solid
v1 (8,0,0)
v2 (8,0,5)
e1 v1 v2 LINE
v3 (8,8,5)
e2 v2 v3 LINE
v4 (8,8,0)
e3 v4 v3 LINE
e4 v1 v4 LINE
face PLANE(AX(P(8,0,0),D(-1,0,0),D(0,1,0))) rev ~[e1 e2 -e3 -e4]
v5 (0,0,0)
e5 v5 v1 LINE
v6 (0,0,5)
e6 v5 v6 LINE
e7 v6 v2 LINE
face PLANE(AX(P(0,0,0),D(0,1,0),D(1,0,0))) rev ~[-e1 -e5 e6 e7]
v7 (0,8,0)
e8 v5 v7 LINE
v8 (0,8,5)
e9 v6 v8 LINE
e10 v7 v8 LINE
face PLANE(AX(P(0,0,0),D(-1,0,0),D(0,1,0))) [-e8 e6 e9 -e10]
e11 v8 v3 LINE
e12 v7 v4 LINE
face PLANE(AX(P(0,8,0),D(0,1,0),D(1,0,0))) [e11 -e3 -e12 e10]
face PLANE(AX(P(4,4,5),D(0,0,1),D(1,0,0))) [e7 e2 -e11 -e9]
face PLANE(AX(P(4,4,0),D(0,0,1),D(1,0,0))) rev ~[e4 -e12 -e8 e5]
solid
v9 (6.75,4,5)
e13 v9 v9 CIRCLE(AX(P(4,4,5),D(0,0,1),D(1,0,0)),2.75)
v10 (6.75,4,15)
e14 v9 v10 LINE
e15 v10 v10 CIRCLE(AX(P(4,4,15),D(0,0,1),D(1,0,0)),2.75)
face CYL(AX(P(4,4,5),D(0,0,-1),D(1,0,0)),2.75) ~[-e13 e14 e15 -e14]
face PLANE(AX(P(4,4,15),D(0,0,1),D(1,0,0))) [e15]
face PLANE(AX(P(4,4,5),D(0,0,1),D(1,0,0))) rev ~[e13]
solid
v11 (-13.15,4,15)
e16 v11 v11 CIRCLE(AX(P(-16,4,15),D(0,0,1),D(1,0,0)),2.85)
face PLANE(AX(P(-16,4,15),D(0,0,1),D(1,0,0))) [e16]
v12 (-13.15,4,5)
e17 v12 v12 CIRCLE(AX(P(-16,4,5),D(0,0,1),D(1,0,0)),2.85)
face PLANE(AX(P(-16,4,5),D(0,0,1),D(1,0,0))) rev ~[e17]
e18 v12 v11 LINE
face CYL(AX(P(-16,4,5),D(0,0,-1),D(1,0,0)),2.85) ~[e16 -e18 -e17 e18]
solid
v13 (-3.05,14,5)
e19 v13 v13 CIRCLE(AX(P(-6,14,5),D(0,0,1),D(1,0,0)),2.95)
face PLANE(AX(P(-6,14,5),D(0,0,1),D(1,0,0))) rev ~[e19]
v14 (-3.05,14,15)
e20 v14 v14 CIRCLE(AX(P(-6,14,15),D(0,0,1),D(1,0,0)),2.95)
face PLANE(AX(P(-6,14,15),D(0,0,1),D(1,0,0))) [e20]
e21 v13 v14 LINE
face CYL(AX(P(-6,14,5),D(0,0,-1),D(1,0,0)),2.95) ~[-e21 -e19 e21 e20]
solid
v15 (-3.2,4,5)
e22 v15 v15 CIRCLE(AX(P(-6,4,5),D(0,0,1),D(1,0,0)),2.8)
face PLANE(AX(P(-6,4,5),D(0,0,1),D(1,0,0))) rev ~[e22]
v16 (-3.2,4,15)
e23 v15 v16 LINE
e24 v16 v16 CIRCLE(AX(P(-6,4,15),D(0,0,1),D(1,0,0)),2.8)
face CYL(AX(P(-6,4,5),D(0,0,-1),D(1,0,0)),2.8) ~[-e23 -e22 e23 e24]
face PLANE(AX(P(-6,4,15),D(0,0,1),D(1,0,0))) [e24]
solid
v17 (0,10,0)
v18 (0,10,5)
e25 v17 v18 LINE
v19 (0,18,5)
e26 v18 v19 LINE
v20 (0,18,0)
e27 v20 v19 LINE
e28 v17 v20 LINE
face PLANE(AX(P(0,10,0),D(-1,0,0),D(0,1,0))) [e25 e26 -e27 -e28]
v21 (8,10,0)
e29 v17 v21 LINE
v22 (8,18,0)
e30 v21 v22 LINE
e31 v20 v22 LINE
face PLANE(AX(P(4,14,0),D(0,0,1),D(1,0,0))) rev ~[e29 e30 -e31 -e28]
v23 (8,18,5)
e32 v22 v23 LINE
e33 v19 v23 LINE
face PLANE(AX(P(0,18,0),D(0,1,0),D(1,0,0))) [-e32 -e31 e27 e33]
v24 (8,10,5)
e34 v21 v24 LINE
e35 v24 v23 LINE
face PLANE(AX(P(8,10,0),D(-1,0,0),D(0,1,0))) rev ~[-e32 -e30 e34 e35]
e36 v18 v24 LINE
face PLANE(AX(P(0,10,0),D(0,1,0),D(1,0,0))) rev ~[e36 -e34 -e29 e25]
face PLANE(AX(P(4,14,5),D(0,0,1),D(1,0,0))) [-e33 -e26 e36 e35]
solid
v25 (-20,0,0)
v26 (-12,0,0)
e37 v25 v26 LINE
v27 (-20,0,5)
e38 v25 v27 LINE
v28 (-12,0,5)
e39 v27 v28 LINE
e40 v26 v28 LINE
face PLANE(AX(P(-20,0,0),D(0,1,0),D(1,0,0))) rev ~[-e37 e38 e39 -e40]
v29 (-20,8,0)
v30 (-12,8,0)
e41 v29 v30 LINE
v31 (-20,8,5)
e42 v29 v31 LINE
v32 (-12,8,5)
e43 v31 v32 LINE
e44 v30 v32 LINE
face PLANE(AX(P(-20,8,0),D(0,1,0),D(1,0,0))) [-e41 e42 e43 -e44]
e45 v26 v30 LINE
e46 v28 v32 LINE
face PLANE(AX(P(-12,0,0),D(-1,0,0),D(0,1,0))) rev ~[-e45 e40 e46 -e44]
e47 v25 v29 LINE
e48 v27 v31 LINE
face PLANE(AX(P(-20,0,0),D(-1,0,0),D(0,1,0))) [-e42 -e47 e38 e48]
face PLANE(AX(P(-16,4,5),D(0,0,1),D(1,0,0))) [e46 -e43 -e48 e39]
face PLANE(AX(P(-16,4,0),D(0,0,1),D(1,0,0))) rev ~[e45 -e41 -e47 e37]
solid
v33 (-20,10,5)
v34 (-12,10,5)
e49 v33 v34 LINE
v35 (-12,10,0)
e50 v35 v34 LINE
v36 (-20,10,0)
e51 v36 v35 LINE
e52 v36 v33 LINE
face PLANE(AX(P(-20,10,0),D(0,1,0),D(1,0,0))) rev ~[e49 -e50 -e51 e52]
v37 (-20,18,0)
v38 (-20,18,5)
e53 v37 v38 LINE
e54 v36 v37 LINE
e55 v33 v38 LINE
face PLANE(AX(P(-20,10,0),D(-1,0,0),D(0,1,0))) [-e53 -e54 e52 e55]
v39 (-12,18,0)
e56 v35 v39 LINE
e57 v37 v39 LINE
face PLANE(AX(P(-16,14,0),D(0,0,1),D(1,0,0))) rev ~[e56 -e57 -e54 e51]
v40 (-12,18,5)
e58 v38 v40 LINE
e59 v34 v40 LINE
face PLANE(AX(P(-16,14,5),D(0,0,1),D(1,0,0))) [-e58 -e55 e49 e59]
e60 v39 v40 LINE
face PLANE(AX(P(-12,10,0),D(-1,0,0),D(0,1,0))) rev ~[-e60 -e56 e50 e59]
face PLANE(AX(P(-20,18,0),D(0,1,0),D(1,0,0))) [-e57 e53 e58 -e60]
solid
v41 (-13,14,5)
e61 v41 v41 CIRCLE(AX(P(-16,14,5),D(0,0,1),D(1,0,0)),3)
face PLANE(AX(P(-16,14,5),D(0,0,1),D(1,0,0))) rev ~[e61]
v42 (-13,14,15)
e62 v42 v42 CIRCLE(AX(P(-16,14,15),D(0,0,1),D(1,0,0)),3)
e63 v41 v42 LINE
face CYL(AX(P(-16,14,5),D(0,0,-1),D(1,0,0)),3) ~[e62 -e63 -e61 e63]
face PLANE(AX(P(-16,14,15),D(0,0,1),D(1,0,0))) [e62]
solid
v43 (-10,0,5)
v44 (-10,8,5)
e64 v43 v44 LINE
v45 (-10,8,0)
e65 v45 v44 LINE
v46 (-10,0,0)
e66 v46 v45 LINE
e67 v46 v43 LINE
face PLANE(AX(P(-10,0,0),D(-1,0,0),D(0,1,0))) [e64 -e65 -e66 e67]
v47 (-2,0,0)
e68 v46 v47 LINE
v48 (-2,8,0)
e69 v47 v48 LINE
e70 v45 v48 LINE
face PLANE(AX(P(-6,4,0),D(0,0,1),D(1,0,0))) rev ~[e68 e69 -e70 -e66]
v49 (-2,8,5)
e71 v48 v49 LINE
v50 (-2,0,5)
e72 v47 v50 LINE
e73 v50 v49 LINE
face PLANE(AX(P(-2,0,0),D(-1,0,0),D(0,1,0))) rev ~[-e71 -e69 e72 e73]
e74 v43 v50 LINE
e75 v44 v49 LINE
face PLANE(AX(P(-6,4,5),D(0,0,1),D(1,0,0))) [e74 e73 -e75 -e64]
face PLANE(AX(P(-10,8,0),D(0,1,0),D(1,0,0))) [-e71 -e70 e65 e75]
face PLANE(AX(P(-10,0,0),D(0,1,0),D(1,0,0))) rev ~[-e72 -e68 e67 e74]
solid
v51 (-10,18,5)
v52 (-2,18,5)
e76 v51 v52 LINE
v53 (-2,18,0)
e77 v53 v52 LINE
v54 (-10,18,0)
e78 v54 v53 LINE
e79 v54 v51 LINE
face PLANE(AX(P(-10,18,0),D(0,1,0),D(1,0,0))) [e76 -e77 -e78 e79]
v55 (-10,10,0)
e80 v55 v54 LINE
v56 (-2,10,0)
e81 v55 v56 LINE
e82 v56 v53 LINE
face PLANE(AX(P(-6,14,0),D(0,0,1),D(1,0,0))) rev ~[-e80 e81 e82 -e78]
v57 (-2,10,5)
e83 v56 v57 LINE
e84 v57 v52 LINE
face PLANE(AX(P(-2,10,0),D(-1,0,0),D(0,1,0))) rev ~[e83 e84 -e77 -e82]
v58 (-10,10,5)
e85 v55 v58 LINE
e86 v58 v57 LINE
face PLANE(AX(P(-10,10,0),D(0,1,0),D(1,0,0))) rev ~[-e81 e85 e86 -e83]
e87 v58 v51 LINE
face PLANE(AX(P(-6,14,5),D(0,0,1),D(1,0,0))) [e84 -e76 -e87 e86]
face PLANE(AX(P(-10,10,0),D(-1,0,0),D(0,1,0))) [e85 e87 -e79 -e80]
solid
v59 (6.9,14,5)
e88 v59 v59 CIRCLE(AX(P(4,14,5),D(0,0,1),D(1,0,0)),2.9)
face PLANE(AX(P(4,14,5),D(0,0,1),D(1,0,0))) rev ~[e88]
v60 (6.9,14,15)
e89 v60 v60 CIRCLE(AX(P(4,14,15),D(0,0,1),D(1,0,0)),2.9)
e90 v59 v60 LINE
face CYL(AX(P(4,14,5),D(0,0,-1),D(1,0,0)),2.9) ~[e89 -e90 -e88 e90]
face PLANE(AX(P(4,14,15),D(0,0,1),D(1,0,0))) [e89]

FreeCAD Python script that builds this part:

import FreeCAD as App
import Part
import Sketcher

V = App.Vector


def add_polygon(sketch, points):
    """Adds a closed chain of lines whose ends are joined by coincident constraints."""
    first, n = sketch.GeometryCount, len(points)
    for a, b in zip(points, points[1:] + points[:1]):
        sketch.addGeometry(Part.LineSegment(App.Vector(*a, 0), App.Vector(*b, 0)), False)
    for i in range(n):
        sketch.addConstraint(Sketcher.Constraint("Coincident", first + i, 2, first + (i + 1) % n, 1))

doc = App.newDocument("Part")
body = doc.addObject("PartDesign::Body", "Body")
body.AllowCompound = True

sketch1 = doc.addObject("Sketcher::SketchObject", "Sketch")
body.addObject(sketch1)
sketch1.AttachmentSupport = (doc.XY_Plane, [""])
sketch1.MapMode = "FlatFace"
add_polygon(sketch1, [(0, 8), (0, 0), (8, 0), (8, 8)])
add_polygon(sketch1, [(-10, 8), (-10, 0), (-2, 0), (-2, 8)])
add_polygon(sketch1, [(-20, 8), (-20, 0), (-12, 0), (-12, 8)])
add_polygon(sketch1, [(0, 18), (0, 10), (8, 10), (8, 18)])
add_polygon(sketch1, [(-10, 18), (-10, 10), (-2, 10), (-2, 18)])
add_polygon(sketch1, [(-20, 18), (-20, 10), (-12, 10), (-12, 18)])
sketch1.addConstraint([
    Sketcher.Constraint("Vertical", 0),
    Sketcher.Constraint("Horizontal", 1),
    Sketcher.Constraint("Vertical", 2),
    Sketcher.Constraint("Horizontal", 3),
    Sketcher.Constraint("Vertical", 4),
    Sketcher.Constraint("Horizontal", 5),
    Sketcher.Constraint("Vertical", 6),
    Sketcher.Constraint("Horizontal", 7),
    Sketcher.Constraint("Vertical", 8),
    Sketcher.Constraint("Horizontal", 9),
    Sketcher.Constraint("Vertical", 10),
    Sketcher.Constraint("Horizontal", 11),
    Sketcher.Constraint("Vertical", 12),
    Sketcher.Constraint("Horizontal", 13),
    Sketcher.Constraint("Vertical", 14),
    Sketcher.Constraint("Horizontal", 15),
    Sketcher.Constraint("Vertical", 16),
    Sketcher.Constraint("Horizontal", 17),
    Sketcher.Constraint("Vertical", 18),
    Sketcher.Constraint("Horizontal", 19),
    Sketcher.Constraint("Vertical", 20),
    Sketcher.Constraint("Horizontal", 21),
    Sketcher.Constraint("Vertical", 22),
    Sketcher.Constraint("Horizontal", 23),
    Sketcher.Constraint("Coincident", 0, 2, -1, 1),
    Sketcher.Constraint("PointOnObject", 4, 2, -1),
    Sketcher.Constraint("PointOnObject", 8, 2, -1),
    Sketcher.Constraint("PointOnObject", 12, 2, -2),
    Sketcher.Constraint("Horizontal", 3, 2, 6, 2),
    Sketcher.Constraint("Horizontal", 7, 2, 10, 2),
    Sketcher.Constraint("Horizontal", 13, 2, 16, 2),
    Sketcher.Constraint("Horizontal", 15, 2, 18, 2),
    Sketcher.Constraint("Horizontal", 17, 2, 20, 2),
    Sketcher.Constraint("Horizontal", 19, 2, 22, 2),
    Sketcher.Constraint("Vertical", 2, 2, 13, 2),
    Sketcher.Constraint("Vertical", 7, 2, 16, 2),
    Sketcher.Constraint("Vertical", 6, 2, 17, 2),
    Sketcher.Constraint("Vertical", 11, 2, 20, 2),
    Sketcher.Constraint("Vertical", 10, 2, 21, 2),
    Sketcher.Constraint("Equal", 3, 5),
    Sketcher.Constraint("Equal", 7, 9),
    Sketcher.Constraint("Equal", 23, 0),
    Sketcher.Constraint("Equal", 10, 12),
    Sketcher.Constraint("DistanceX", 1, 1, 1, 2, 8.0),
    Sketcher.Constraint("DistanceX", 4, 2, -1, 1, 10.0),
    Sketcher.Constraint("DistanceX", 8, 2, -1, 1, 20.0),
    Sketcher.Constraint("DistanceY", -1, 1, 12, 2, 10.0),
])
pad1 = doc.addObject("PartDesign::Pad", "Pad")
body.addObject(pad1)
pad1.Profile = sketch1
pad1.Length = 5
body2 = doc.addObject("PartDesign::Body", "Body001")
body2.AllowCompound = True

sketch2 = doc.addObject("Sketcher::SketchObject", "Sketch001")
body2.addObject(sketch2)
sketch2.AttachmentSupport = (doc.getObject("XY_Plane001"), [""])
sketch2.MapMode = "FlatFace"
sketch2.AttachmentOffset = App.Placement(V(0, 0, 5), App.Rotation())
sketch2.addGeometry([
    Part.Circle(V(-16, 14, 0), V(0, 0, 1), 3),
    Part.Circle(V(-6, 14, 0), V(0, 0, 1), 2.95),
    Part.Circle(V(4, 14, 0), V(0, 0, 1), 2.9),
    Part.Circle(V(-16, 4, 0), V(0, 0, 1), 2.85),
    Part.Circle(V(-6, 4, 0), V(0, 0, 1), 2.8),
    Part.Circle(V(4, 4, 0), V(0, 0, 1), 2.75),
], False)
sketch2.addConstraint([
    Sketcher.Constraint("Horizontal", 0, 3, 1, 3),
    Sketcher.Constraint("Horizontal", 1, 3, 2, 3),
    Sketcher.Constraint("Horizontal", 3, 3, 4, 3),
    Sketcher.Constraint("Horizontal", 4, 3, 5, 3),
    Sketcher.Constraint("Vertical", 0, 3, 3, 3),
    Sketcher.Constraint("Vertical", 1, 3, 4, 3),
    Sketcher.Constraint("Vertical", 2, 3, 5, 3),
    Sketcher.Constraint("Diameter", 0, 6.0),
    Sketcher.Constraint("Diameter", 1, 5.9),
    Sketcher.Constraint("Diameter", 2, 5.8),
    Sketcher.Constraint("Diameter", 3, 5.7),
    Sketcher.Constraint("Diameter", 4, 5.6),
    Sketcher.Constraint("Diameter", 5, 5.5),
    Sketcher.Constraint("DistanceX", 0, 3, -1, 1, 16.0),
    Sketcher.Constraint("DistanceY", -1, 1, 0, 3, 14.0),
    Sketcher.Constraint("DistanceX", 1, 3, -1, 1, 6.0),
    Sketcher.Constraint("DistanceX", -1, 1, 2, 3, 4.0),
    Sketcher.Constraint("DistanceY", -1, 1, 3, 3, 4.0),
])
pad2 = doc.addObject("PartDesign::Pad", "Pad001")
body2.addObject(pad2)
pad2.Profile = sketch2
pad2.Length = 10

doc.recompute()
